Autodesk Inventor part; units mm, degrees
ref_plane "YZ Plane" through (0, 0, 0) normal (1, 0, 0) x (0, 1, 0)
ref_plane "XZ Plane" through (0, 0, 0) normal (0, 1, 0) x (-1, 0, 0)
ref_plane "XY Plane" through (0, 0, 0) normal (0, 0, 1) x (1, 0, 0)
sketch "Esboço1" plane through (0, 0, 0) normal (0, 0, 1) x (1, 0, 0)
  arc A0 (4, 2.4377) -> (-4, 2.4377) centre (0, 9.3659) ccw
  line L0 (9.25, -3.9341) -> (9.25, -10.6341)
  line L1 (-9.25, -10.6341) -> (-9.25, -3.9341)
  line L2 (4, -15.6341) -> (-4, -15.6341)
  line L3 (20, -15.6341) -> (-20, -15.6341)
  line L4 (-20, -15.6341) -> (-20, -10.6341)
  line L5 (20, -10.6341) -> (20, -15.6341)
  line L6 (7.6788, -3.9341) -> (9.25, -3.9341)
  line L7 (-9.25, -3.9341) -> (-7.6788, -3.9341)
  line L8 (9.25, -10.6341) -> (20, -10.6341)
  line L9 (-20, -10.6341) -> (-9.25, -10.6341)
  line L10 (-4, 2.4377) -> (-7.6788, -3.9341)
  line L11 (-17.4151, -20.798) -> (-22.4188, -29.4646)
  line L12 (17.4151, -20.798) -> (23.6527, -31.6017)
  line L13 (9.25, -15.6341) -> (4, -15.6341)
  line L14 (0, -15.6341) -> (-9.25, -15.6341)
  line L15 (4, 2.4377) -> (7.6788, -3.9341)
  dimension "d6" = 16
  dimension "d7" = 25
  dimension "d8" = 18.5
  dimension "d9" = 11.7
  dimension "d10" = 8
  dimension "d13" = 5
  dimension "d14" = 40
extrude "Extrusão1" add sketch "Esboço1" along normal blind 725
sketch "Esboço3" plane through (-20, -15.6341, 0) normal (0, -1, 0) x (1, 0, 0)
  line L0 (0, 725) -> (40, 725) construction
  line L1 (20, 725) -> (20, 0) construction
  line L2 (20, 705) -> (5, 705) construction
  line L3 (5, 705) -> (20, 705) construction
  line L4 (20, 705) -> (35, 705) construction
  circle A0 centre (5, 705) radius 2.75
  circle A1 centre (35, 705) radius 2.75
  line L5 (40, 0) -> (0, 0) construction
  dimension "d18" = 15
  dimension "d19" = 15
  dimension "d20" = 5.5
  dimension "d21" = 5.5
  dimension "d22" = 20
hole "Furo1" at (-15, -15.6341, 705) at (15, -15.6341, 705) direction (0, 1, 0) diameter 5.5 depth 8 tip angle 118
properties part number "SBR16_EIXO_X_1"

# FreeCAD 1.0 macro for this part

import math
import FreeCAD as App
import Part
import Sketcher

V = App.Vector
Q = App.Units.Quantity

doc = App.newDocument("Part")
body = doc.addObject("PartDesign::Body", "Body")

sketch1 = body.newObject("Sketcher::SketchObject", "Sketch")
sketch1.AttachmentSupport = (doc.getObject("XY_Plane"), [""])
sketch1.MapMode = "FlatFace"
sketch1.addGeometry([
    Part.LineSegment(V(7.6788, -3.9341, 0), V(4, 2.4377, 0)),
    Part.ArcOfCircle(Part.Circle(V(0, 9.3659, 0), V(0, 0, 1), 7.999997), math.radians(-59.999988), math.radians(239.999988)),
    Part.LineSegment(V(-4, 2.4377, 0), V(-7.6788, -3.9341, 0)),
    Part.LineSegment(V(-7.6788, -3.9341, 0), V(-9.25, -3.9341, 0)),
    Part.LineSegment(V(-9.25, -3.9341, 0), V(-9.25, -10.6341, 0)),
    Part.LineSegment(V(-9.25, -10.6341, 0), V(-20, -10.6341, 0)),
    Part.LineSegment(V(-20, -10.6341, 0), V(-20, -15.6341, 0)),
    Part.LineSegment(V(-20, -15.6341, 0), V(20, -15.6341, 0)),
    Part.LineSegment(V(20, -15.6341, 0), V(20, -10.6341, 0)),
    Part.LineSegment(V(20, -10.6341, 0), V(9.25, -10.6341, 0)),
    Part.LineSegment(V(9.25, -10.6341, 0), V(9.25, -3.9341, 0)),
    Part.LineSegment(V(9.25, -3.9341, 0), V(7.6788, -3.9341, 0)),
], False)
sketch1.addConstraint([
    Sketcher.Constraint("Coincident", 0, 2, 1, 1),
    Sketcher.Constraint("Coincident", 1, 2, 2, 1),
    Sketcher.Constraint("Coincident", 2, 2, 3, 1),
    Sketcher.Constraint("Coincident", 3, 2, 4, 1),
    Sketcher.Constraint("Coincident", 4, 2, 5, 1),
    Sketcher.Constraint("Coincident", 5, 2, 6, 1),
    Sketcher.Constraint("Coincident", 6, 2, 7, 1),
    Sketcher.Constraint("Coincident", 7, 2, 8, 1),
    Sketcher.Constraint("Coincident", 8, 2, 9, 1),
    Sketcher.Constraint("Coincident", 9, 2, 10, 1),
    Sketcher.Constraint("Coincident", 10, 2, 11, 1),
    Sketcher.Constraint("Coincident", 11, 2, 0, 1),
    Sketcher.Constraint("Horizontal", 3),
    Sketcher.Constraint("Vertical", 4),
    Sketcher.Constraint("Horizontal", 5),
    Sketcher.Constraint("Vertical", 6),
    Sketcher.Constraint("Horizontal", 7),
    Sketcher.Constraint("Vertical", 8),
    Sketcher.Constraint("Horizontal", 9),
    Sketcher.Constraint("Vertical", 10),
    Sketcher.Constraint("Horizontal", 11),
    Sketcher.Constraint("Symmetric", 0, 2, 1, 2, -2),
    Sketcher.Constraint("Symmetric", 5, 2, 8, 2, -2),
    Sketcher.Constraint("Symmetric", 3, 2, 10, 2, -2),
    Sketcher.Constraint("Equal", 3, 11),
    Sketcher.Constraint("Radius", 1, 8.0),
    Sketcher.Constraint("DistanceX", 7, 1, 7, 2, 40.0),
    Sketcher.Constraint("DistanceY", 6, 2, 6, 1, 5.0),
    Sketcher.Constraint("DistanceX", 1, 2, 0, 2, 8.0),
    Sketcher.Constraint("DistanceY", 6, 2, 3, 2, 11.7),
    Sketcher.Constraint("DistanceX", 4, 2, 9, 2, 18.5),
    Sketcher.Constraint("Angle", 0, Q("120.0003 deg")),
    Sketcher.Constraint("DistanceY", 4, 2, 1, 3, 20.0),
    Sketcher.Constraint("DistanceY", -1, 1, 1, 3, 9.366),
])
pad1 = body.newObject("PartDesign::Pad", "Pad")
pad1.Profile = sketch1
pad1.Length = 725

sketch2 = body.newObject("Sketcher::SketchObject", "Sketch001")
sketch2.AttachmentSupport = (doc.getObject("XZ_Plane"), [""])
sketch2.MapMode = "FlatFace"
sketch2.AttachmentOffset = App.Placement(V(0, 0, 15.6341), App.Rotation())
sketch2.addGeometry([
    Part.Circle(V(-15, 705, 0), V(0, 0, 1), 2.75),
    Part.Circle(V(15, 705, 0), V(0, 0, 1), 2.75),
], False)
sketch2.addConstraint([
    Sketcher.Constraint("Equal", 0, 1),
    Sketcher.Constraint("Symmetric", 0, 3, 1, 3, -2),
    Sketcher.Constraint("Diameter", 0, 5.5),
    Sketcher.Constraint("DistanceX", 0, 3, -1, 1, 15.0),
    Sketcher.Constraint("DistanceY", -1, 1, 0, 3, 705.0),
])
doc.recompute()
hole = body.newObject("PartDesign::Hole", "Hole")
hole.Profile = sketch2
hole.ThreadType = "None"
hole.Diameter = 5.5
hole.DepthType = "Dimension"
hole.Depth = 8
hole.DrillPoint = "Angled"
hole.DrillPointAngle = 118

doc.recompute()
